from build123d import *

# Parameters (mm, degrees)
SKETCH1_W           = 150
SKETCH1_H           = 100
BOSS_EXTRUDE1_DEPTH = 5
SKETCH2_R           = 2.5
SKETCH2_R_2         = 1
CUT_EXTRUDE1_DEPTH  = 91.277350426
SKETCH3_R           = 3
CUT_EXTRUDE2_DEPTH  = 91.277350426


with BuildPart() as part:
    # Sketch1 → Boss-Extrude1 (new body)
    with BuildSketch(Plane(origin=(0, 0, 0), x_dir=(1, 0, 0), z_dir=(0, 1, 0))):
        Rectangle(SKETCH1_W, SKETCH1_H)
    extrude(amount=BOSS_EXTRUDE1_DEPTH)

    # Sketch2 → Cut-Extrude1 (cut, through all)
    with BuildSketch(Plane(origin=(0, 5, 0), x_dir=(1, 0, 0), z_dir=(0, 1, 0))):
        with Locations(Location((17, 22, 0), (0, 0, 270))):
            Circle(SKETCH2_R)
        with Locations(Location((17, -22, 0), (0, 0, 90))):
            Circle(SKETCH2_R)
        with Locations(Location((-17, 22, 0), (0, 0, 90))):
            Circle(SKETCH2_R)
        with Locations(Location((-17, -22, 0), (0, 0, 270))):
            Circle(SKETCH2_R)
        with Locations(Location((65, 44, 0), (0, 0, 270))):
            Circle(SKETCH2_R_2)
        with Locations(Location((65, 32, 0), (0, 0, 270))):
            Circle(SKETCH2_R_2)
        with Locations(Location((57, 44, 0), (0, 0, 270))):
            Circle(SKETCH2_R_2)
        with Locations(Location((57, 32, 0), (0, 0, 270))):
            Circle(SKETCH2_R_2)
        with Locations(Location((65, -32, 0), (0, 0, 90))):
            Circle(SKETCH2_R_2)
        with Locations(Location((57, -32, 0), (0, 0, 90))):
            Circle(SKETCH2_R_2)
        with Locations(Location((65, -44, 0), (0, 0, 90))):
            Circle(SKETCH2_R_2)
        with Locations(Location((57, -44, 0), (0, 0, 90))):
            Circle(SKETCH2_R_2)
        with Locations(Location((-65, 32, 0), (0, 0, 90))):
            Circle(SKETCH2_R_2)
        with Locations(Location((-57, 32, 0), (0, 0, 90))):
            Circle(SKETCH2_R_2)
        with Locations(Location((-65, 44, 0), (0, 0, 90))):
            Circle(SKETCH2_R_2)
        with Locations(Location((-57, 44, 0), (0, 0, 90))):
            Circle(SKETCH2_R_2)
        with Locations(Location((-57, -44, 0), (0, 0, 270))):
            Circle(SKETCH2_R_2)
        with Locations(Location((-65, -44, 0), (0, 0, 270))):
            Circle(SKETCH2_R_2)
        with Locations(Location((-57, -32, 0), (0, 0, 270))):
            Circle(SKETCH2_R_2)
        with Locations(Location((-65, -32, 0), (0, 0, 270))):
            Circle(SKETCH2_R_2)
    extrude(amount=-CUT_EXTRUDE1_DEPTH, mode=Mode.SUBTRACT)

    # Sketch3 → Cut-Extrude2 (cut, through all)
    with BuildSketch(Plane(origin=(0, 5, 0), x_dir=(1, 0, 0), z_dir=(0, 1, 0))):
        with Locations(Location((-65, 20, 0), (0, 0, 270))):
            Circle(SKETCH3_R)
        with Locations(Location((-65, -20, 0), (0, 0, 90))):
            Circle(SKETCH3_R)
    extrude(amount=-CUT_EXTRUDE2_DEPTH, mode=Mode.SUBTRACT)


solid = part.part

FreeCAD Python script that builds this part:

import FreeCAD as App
import Part
import Sketcher
from FreeCAD import Vector
Q = App.Units.Quantity


def add_polygon(sketch, points):
    """Adds a closed chain of lines whose ends are joined by coincident constraints."""
    first, n = sketch.GeometryCount, len(points)
    for a, b in zip(points, points[1:] + points[:1]):
        sketch.addGeometry(Part.LineSegment(App.Vector(*a, 0), App.Vector(*b, 0)), False)
    for i in range(n):
        sketch.addConstraint(Sketcher.Constraint("Coincident", first + i, 2, first + (i + 1) % n, 1))

doc = App.newDocument("Part")
body = doc.addObject("PartDesign::Body", "Body")

sketch1 = doc.addObject("Sketcher::SketchObject", "Sketch")
body.addObject(sketch1)
sketch1.AttachmentSupport = (doc.XZ_Plane, [""])
sketch1.MapMode = "FlatFace"
add_polygon(sketch1, [(-75, -50), (-75, 50), (75, 50), (75, -50)])
sketch1.addConstraint(Sketcher.Constraint("Vertical", 0))
sketch1.addConstraint(Sketcher.Constraint("Horizontal", 1))
sketch1.addConstraint(Sketcher.Constraint("Vertical", 2))
sketch1.addConstraint(Sketcher.Constraint("Horizontal", 3))
sketch1.addConstraint(Sketcher.Constraint("Symmetric", 0, 2, 2, 2, -1, 1))
sketch1.addConstraint(Sketcher.Constraint("DistanceX", 1, 1, 1, 2, Q("150 mm")))
sketch1.addConstraint(Sketcher.Constraint("DistanceY", 0, 1, 0, 2, Q("100 mm")))
pad1 = doc.addObject("PartDesign::Pad", "Pad")
body.addObject(pad1)
pad1.Profile = sketch1
pad1.Length = 5
pad1.Reversed = True

sketch2 = doc.addObject("Sketcher::SketchObject", "Sketch001")
body.addObject(sketch2)
sketch2.AttachmentSupport = (doc.XZ_Plane, [""])
sketch2.MapMode = "FlatFace"
sketch2.AttachmentOffset = App.Placement(Vector(0, 0, -5), App.Rotation())
sketch2.addGeometry(Part.Circle(Vector(17, -22, 0), Vector(0, 0, 1), 2.5), False)
sketch2.addGeometry(Part.Circle(Vector(17, 22, 0), Vector(0, 0, 1), 2.5), False)
sketch2.addGeometry(Part.Circle(Vector(-17, -22, 0), Vector(0, 0, 1), 2.5), False)
sketch2.addGeometry(Part.Circle(Vector(-17, 22, 0), Vector(0, 0, 1), 2.5), False)
sketch2.addGeometry(Part.Circle(Vector(65, -44, 0), Vector(0, 0, 1), 1), False)
sketch2.addGeometry(Part.Circle(Vector(65, -32, 0), Vector(0, 0, 1), 1), False)
sketch2.addGeometry(Part.Circle(Vector(57, -44, 0), Vector(0, 0, 1), 1), False)
sketch2.addGeometry(Part.Circle(Vector(57, -32, 0), Vector(0, 0, 1), 1), False)
sketch2.addGeometry(Part.Circle(Vector(65, 32, 0), Vector(0, 0, 1), 1), False)
sketch2.addGeometry(Part.Circle(Vector(57, 32, 0), Vector(0, 0, 1), 1), False)
sketch2.addGeometry(Part.Circle(Vector(65, 44, 0), Vector(0, 0, 1), 1), False)
sketch2.addGeometry(Part.Circle(Vector(57, 44, 0), Vector(0, 0, 1), 1), False)
sketch2.addGeometry(Part.Circle(Vector(-65, -32, 0), Vector(0, 0, 1), 1), False)
sketch2.addGeometry(Part.Circle(Vector(-57, -32, 0), Vector(0, 0, 1), 1), False)
sketch2.addGeometry(Part.Circle(Vector(-65, -44, 0), Vector(0, 0, 1), 1), False)
sketch2.addGeometry(Part.Circle(Vector(-57, -44, 0), Vector(0, 0, 1), 1), False)
sketch2.addGeometry(Part.Circle(Vector(-57, 44, 0), Vector(0, 0, 1), 1), False)
sketch2.addGeometry(Part.Circle(Vector(-65, 44, 0), Vector(0, 0, 1), 1), False)
sketch2.addGeometry(Part.Circle(Vector(-57, 32, 0), Vector(0, 0, 1), 1), False)
sketch2.addGeometry(Part.Circle(Vector(-65, 32, 0), Vector(0, 0, 1), 1), False)
sketch2.addConstraint(Sketcher.Constraint("Equal", 0, 1))
sketch2.addConstraint(Sketcher.Constraint("Equal", 1, 2))
sketch2.addConstraint(Sketcher.Constraint("Equal", 2, 3))
sketch2.addConstraint(Sketcher.Constraint("Equal", 4, 5))
sketch2.addConstraint(Sketcher.Constraint("Equal", 5, 6))
sketch2.addConstraint(Sketcher.Constraint("Equal", 6, 7))
sketch2.addConstraint(Sketcher.Constraint("Equal", 7, 8))
sketch2.addConstraint(Sketcher.Constraint("Equal", 8, 9))
sketch2.addConstraint(Sketcher.Constraint("Equal", 9, 10))
sketch2.addConstraint(Sketcher.Constraint("Equal", 10, 11))
sketch2.addConstraint(Sketcher.Constraint("Equal", 11, 12))
sketch2.addConstraint(Sketcher.Constraint("Equal", 12, 13))
sketch2.addConstraint(Sketcher.Constraint("Equal", 13, 14))
sketch2.addConstraint(Sketcher.Constraint("Equal", 14, 15))
sketch2.addConstraint(Sketcher.Constraint("Equal", 15, 16))
sketch2.addConstraint(Sketcher.Constraint("Equal", 16, 17))
sketch2.addConstraint(Sketcher.Constraint("Equal", 17, 18))
sketch2.addConstraint(Sketcher.Constraint("Equal", 18, 19))
sketch2.addConstraint(Sketcher.Constraint("Symmetric", 1, 3, 2, 3, -1, 1))
sketch2.addConstraint(Sketcher.Constraint("Symmetric", 0, 3, 3, 3, -1, 1))
sketch2.addConstraint(Sketcher.Constraint("Symmetric", 8, 3, 12, 3, -1, 1))
sketch2.addConstraint(Sketcher.Constraint("Symmetric", 9, 3, 13, 3, -1, 1))
sketch2.addConstraint(Sketcher.Constraint("Symmetric", 10, 3, 14, 3, -1, 1))
sketch2.addConstraint(Sketcher.Constraint("Symmetric", 11, 3, 15, 3, -1, 1))
sketch2.addConstraint(Sketcher.Constraint("Symmetric", 6, 3, 16, 3, -1, 1))
sketch2.addConstraint(Sketcher.Constraint("Symmetric", 4, 3, 17, 3, -1, 1))
sketch2.addConstraint(Sketcher.Constraint("Symmetric", 7, 3, 18, 3, -1, 1))
sketch2.addConstraint(Sketcher.Constraint("Symmetric", 5, 3, 19, 3, -1, 1))
sketch2.addConstraint(Sketcher.Constraint("Symmetric", 0, 3, 2, 3, -2))
sketch2.addConstraint(Sketcher.Constraint("Symmetric", 5, 3, 12, 3, -2))
sketch2.addConstraint(Sketcher.Constraint("Symmetric", 7, 3, 13, 3, -2))
sketch2.addConstraint(Sketcher.Constraint("Symmetric", 4, 3, 14, 3, -2))
sketch2.addConstraint(Sketcher.Constraint("Symmetric", 6, 3, 15, 3, -2))
sketch2.addConstraint(Sketcher.Constraint("Horizontal", 4, 3, 6, 3))
sketch2.addConstraint(Sketcher.Constraint("Horizontal", 5, 3, 7, 3))
sketch2.addConstraint(Sketcher.Constraint("Vertical", 4, 3, 5, 3))
sketch2.addConstraint(Sketcher.Constraint("Vertical", 6, 3, 7, 3))
sketch2.addConstraint(Sketcher.Constraint("Diameter", 0, Q("5 mm")))
sketch2.addConstraint(Sketcher.Constraint("Diameter", 4, Q("2 mm")))
sketch2.addConstraint(Sketcher.Constraint("DistanceX", -1, 1, 0, 3, Q("17 mm")))
sketch2.addConstraint(Sketcher.Constraint("DistanceY", 0, 3, -1, 1, Q("22 mm")))
sketch2.addConstraint(Sketcher.Constraint("DistanceX", -1, 1, 4, 3, Q("65 mm")))
sketch2.addConstraint(Sketcher.Constraint("DistanceY", 4, 3, -1, 1, Q("44 mm")))
sketch2.addConstraint(Sketcher.Constraint("DistanceY", 5, 3, -1, 1, Q("32 mm")))
sketch2.addConstraint(Sketcher.Constraint("DistanceX", -1, 1, 6, 3, Q("57 mm")))
pocket1 = doc.addObject("PartDesign::Pocket", "Pocket")
body.addObject(pocket1)
pocket1.Profile = sketch2
pocket1.Type = "ThroughAll"
pocket1.Reversed = True

sketch3 = doc.addObject("Sketcher::SketchObject", "Sketch002")
body.addObject(sketch3)
sketch3.AttachmentSupport = (doc.XZ_Plane, [""])
sketch3.MapMode = "FlatFace"
sketch3.AttachmentOffset = App.Placement(Vector(0, 0, -5), App.Rotation())
sketch3.addGeometry(Part.Circle(Vector(-65, -20, 0), Vector(0, 0, 1), 3), False)
sketch3.addGeometry(Part.Circle(Vector(-65, 20, 0), Vector(0, 0, 1), 3), False)
sketch3.addConstraint(Sketcher.Constraint("Equal", 0, 1))
sketch3.addConstraint(Sketcher.Constraint("Symmetric", 0, 3, 1, 3, -1))
sketch3.addConstraint(Sketcher.Constraint("Diameter", 0, Q("6 mm")))
sketch3.addConstraint(Sketcher.Constraint("DistanceX", 0, 3, -1, 1, Q("65 mm")))
sketch3.addConstraint(Sketcher.Constraint("DistanceY", 0, 3, -1, 1, Q("20 mm")))
pocket2 = doc.addObject("PartDesign::Pocket", "Pocket001")
body.addObject(pocket2)
pocket2.Profile = sketch3
pocket2.Type = "ThroughAll"
pocket2.Reversed = True

doc.recompute()
